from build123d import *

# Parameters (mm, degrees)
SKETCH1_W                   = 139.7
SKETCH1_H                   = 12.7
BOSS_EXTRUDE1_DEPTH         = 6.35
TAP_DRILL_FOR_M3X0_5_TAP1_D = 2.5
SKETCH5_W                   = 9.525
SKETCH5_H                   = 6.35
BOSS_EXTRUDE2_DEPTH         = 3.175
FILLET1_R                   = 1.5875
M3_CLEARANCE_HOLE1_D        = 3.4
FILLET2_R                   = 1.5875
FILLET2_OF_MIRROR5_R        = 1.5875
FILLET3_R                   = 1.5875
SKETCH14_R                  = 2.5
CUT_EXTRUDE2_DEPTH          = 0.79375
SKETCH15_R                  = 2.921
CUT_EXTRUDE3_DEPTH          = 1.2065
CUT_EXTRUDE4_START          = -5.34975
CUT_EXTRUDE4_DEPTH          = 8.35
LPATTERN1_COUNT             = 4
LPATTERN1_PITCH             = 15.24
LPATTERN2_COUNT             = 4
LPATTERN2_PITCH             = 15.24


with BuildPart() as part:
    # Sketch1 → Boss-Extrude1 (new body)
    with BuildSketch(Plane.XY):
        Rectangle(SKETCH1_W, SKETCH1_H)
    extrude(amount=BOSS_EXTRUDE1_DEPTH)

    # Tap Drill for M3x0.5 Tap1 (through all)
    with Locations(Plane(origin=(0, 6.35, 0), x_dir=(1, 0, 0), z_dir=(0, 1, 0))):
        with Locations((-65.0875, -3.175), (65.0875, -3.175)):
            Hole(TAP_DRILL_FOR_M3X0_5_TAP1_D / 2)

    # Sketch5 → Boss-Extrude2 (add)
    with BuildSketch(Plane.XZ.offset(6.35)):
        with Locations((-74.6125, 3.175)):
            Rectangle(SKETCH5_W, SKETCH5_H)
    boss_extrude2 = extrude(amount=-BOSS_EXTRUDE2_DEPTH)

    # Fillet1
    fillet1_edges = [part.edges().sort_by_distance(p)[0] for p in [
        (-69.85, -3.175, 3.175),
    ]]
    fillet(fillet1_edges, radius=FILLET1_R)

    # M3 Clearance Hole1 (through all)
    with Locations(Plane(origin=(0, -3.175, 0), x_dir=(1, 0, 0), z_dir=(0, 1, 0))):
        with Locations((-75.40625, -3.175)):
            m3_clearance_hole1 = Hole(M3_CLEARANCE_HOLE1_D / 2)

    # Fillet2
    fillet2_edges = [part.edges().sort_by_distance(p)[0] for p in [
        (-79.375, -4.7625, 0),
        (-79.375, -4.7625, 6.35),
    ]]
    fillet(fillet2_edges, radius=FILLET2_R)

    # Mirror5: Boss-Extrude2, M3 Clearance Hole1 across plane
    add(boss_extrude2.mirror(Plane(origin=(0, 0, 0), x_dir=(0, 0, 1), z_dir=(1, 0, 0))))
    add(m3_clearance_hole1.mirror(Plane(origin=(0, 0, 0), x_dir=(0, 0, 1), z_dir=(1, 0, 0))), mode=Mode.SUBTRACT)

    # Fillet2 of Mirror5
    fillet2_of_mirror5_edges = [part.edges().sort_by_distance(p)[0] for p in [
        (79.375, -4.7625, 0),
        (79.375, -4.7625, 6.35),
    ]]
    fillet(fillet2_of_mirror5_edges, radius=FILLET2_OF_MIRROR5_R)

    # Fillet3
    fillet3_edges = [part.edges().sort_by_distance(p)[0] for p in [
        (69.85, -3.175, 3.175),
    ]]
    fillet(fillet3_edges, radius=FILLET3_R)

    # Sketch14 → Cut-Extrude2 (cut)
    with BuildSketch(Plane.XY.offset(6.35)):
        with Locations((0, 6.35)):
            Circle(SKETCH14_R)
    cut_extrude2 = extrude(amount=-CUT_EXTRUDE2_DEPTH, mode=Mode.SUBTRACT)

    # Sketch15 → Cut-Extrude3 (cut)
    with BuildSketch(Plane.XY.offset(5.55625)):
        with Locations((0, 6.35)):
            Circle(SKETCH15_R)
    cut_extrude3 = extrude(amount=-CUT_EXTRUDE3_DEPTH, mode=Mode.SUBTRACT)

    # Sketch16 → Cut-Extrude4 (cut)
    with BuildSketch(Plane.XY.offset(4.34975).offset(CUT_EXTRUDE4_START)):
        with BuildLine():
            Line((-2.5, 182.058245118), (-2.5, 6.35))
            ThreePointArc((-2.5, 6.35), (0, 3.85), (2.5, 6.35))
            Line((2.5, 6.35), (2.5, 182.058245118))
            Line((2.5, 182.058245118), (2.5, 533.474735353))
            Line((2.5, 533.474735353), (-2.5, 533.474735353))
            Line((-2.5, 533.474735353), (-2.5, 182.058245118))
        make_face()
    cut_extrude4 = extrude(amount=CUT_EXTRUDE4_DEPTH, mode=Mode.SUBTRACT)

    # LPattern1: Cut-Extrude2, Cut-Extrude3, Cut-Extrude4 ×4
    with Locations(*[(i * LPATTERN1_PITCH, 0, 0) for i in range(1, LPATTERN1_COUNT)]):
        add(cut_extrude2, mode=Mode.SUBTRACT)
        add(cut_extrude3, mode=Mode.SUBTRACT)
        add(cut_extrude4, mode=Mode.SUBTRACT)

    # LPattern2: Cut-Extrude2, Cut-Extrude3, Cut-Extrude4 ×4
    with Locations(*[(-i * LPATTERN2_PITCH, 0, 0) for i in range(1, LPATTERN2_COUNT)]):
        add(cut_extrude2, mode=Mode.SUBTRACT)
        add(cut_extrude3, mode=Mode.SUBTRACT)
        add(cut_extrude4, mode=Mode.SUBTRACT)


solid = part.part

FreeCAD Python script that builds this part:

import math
import FreeCAD as App
import Part
import Sketcher
Q = App.Units.Quantity


def edges_at(feature, points):
    """Names of the edges that pass closest to the given points."""
    edges = feature.Shape.Edges
    near = lambda p: min(range(len(edges)), key=lambda i: edges[i].distToShape(Part.Vertex(*p))[0])
    return sorted({f"Edge{near(p) + 1}" for p in points})

doc = App.newDocument("Part")
body = doc.addObject("PartDesign::Body", "Body")

sketch1 = body.newObject("Sketcher::SketchObject", "Sketch")
sketch1.AttachmentSupport = (doc.getObject("XY_Plane"), [""])
sketch1.MapMode = "FlatFace"
sketch1.addGeometry(Part.LineSegment(App.Vector(-69.85, 6.35, 0), App.Vector(-69.85, -6.35, 0)), False)
sketch1.addGeometry(Part.LineSegment(App.Vector(-69.85, -6.35, 0), App.Vector(69.85, -6.35, 0)), False)
sketch1.addGeometry(Part.LineSegment(App.Vector(69.85, -6.35, 0), App.Vector(69.85, 6.35, 0)), False)
sketch1.addGeometry(Part.LineSegment(App.Vector(69.85, 6.35, 0), App.Vector(-69.85, 6.35, 0)), False)
sketch1.addConstraint(Sketcher.Constraint("Coincident", 0, 2, 1, 1))
sketch1.addConstraint(Sketcher.Constraint("Coincident", 1, 2, 2, 1))
sketch1.addConstraint(Sketcher.Constraint("Coincident", 2, 2, 3, 1))
sketch1.addConstraint(Sketcher.Constraint("Coincident", 3, 2, 0, 1))
sketch1.addConstraint(Sketcher.Constraint("Vertical", 0))
sketch1.addConstraint(Sketcher.Constraint("Horizontal", 1))
sketch1.addConstraint(Sketcher.Constraint("Vertical", 2))
sketch1.addConstraint(Sketcher.Constraint("Horizontal", 3))
sketch1.addConstraint(Sketcher.Constraint("Symmetric", 0, 2, 2, 2, -1, 1))
sketch1.addConstraint(Sketcher.Constraint("DistanceX", 1, 1, 1, 2, Q("5.5 in")))
sketch1.addConstraint(Sketcher.Constraint("DistanceY", 0, 2, 0, 1, Q("0.5 in")))
pad1 = body.newObject("PartDesign::Pad", "Pad")
pad1.Profile = sketch1
pad1.Length = Q("0.25 in")

sketch2 = body.newObject("Sketcher::SketchObject", "Sketch001")
sketch2.AttachmentSupport = (doc.getObject("XZ_Plane"), [""])
sketch2.MapMode = "FlatFace"
sketch2.AttachmentOffset = App.Placement(App.Vector(0, 0, -0.25 * 25.4), App.Rotation())
sketch2.addGeometry(Part.Circle(App.Vector(-65.0875, 3.175, 0), App.Vector(0, 0, 1), 1.25), False)
sketch2.addGeometry(Part.Circle(App.Vector(65.0875, 3.175, 0), App.Vector(0, 0, 1), 1.25), False)
sketch2.addConstraint(Sketcher.Constraint("Equal", 0, 1))
sketch2.addConstraint(Sketcher.Constraint("Symmetric", 0, 3, 1, 3, -2))
sketch2.addConstraint(Sketcher.Constraint("Diameter", 0, 2.5))
sketch2.addConstraint(Sketcher.Constraint("DistanceX", 0, 3, -1, 1, Q("2.5625 in")))
sketch2.addConstraint(Sketcher.Constraint("DistanceY", -1, 1, 0, 3, Q("0.125 in")))
doc.recompute()
hole = body.newObject("PartDesign::Hole", "Hole")
hole.Profile = sketch2
hole.ThreadType = "None"
hole.Diameter = 2.5
hole.DepthType = "ThroughAll"
hole.Reversed = True

sketch3 = body.newObject("Sketcher::SketchObject", "Sketch002")
sketch3.AttachmentSupport = (doc.getObject("XZ_Plane"), [""])
sketch3.MapMode = "FlatFace"
sketch3.AttachmentOffset = App.Placement(App.Vector(0, 0, 0.25 * 25.4), App.Rotation())
sketch3.addGeometry(Part.LineSegment(App.Vector(-79.375, 6.35, 0), App.Vector(-79.375, 0, 0)), False)
sketch3.addGeometry(Part.LineSegment(App.Vector(-79.375, 0, 0), App.Vector(-69.85, 0, 0)), False)
sketch3.addGeometry(Part.LineSegment(App.Vector(-69.85, 0, 0), App.Vector(-69.85, 6.35, 0)), False)
sketch3.addGeometry(Part.LineSegment(App.Vector(-69.85, 6.35, 0), App.Vector(-79.375, 6.35, 0)), False)
sketch3.addConstraint(Sketcher.Constraint("Coincident", 0, 2, 1, 1))
sketch3.addConstraint(Sketcher.Constraint("Coincident", 1, 2, 2, 1))
sketch3.addConstraint(Sketcher.Constraint("Coincident", 2, 2, 3, 1))
sketch3.addConstraint(Sketcher.Constraint("Coincident", 3, 2, 0, 1))
sketch3.addConstraint(Sketcher.Constraint("Vertical", 0))
sketch3.addConstraint(Sketcher.Constraint("Horizontal", 1))
sketch3.addConstraint(Sketcher.Constraint("Vertical", 2))
sketch3.addConstraint(Sketcher.Constraint("Horizontal", 3))
sketch3.addConstraint(Sketcher.Constraint("PointOnObject", 0, 2, -1))
sketch3.addConstraint(Sketcher.Constraint("DistanceY", 0, 2, 0, 1, Q("0.25 in")))
sketch3.addConstraint(Sketcher.Constraint("DistanceX", 1, 1, 1, 2, Q("0.375 in")))
sketch3.addConstraint(Sketcher.Constraint("DistanceX", 1, 2, -1, 1, Q("2.75 in")))
pad2 = body.newObject("PartDesign::Pad", "Pad001")
pad2.Profile = sketch3
pad2.Length = Q("0.125 in")
pad2.Reversed = True
doc.recompute()

fillet = body.newObject("PartDesign::Fillet", "Fillet")
fillet.Base = (pad2, edges_at(pad2, [(-69.85, -3.175, 3.175)]))
fillet.Radius = Q("0.0625 in")

sketch4 = body.newObject("Sketcher::SketchObject", "Sketch003")
sketch4.AttachmentSupport = (doc.getObject("XZ_Plane"), [""])
sketch4.MapMode = "FlatFace"
sketch4.AttachmentOffset = App.Placement(App.Vector(0, 0, 0.125 * 25.4), App.Rotation())
sketch4.addGeometry(Part.Circle(App.Vector(-75.40625, 3.175, 0), App.Vector(0, 0, 1), 1.7), False)
sketch4.addConstraint(Sketcher.Constraint("Diameter", 0, 3.4))
sketch4.addConstraint(Sketcher.Constraint("DistanceX", 0, 3, -1, 1, Q("2.96875 in")))
sketch4.addConstraint(Sketcher.Constraint("DistanceY", -1, 1, 0, 3, Q("0.125 in")))
doc.recompute()
hole2 = body.newObject("PartDesign::Hole", "Hole001")
hole2.Profile = sketch4
hole2.ThreadType = "None"
hole2.Diameter = 3.4
hole2.DepthType = "ThroughAll"
hole2.Reversed = True
doc.recompute()

fillet2 = body.newObject("PartDesign::Fillet", "Fillet001")
fillet2.Base = (hole2, edges_at(hole2, [(-79.375, -4.763, 0), (-79.375, -4.763, 6.35)]))
fillet2.Radius = Q("0.0625 in")
doc.recompute()

mirrored = body.newObject("PartDesign::Mirrored", "Mirrored")
mirrored.Originals = [pad2, hole2]
mirrored.MirrorPlane = (doc.getObject("YZ_Plane"), [""])
body.Tip = mirrored
doc.recompute()

fillet3 = body.newObject("PartDesign::Fillet", "Fillet002")
fillet3.Base = (mirrored, edges_at(mirrored, [(79.375, -4.763, 0), (79.375, -4.763, 6.35)]))
fillet3.Radius = Q("0.0625 in")
doc.recompute()

fillet4 = body.newObject("PartDesign::Fillet", "Fillet003")
fillet4.Base = (fillet3, edges_at(fillet3, [(69.85, -3.175, 3.175)]))
fillet4.Radius = Q("0.0625 in")

sketch5 = body.newObject("Sketcher::SketchObject", "Sketch004")
sketch5.AttachmentSupport = (doc.getObject("XY_Plane"), [""])
sketch5.MapMode = "FlatFace"
sketch5.AttachmentOffset = App.Placement(App.Vector(0, 0, 0.25 * 25.4), App.Rotation())
sketch5.addGeometry(Part.Circle(App.Vector(0, 6.35, 0), App.Vector(0, 0, 1), 2.5), False)
sketch5.addConstraint(Sketcher.Constraint("PointOnObject", 0, 3, -2))
sketch5.addConstraint(Sketcher.Constraint("Diameter", 0, 5.0))
sketch5.addConstraint(Sketcher.Constraint("DistanceY", -1, 1, 0, 3, Q("0.25 in")))
pocket1 = body.newObject("PartDesign::Pocket", "Pocket")
pocket1.Profile = sketch5
pocket1.Length = Q("0.03125 in")

sketch6 = body.newObject("Sketcher::SketchObject", "Sketch005")
sketch6.AttachmentSupport = (doc.getObject("XY_Plane"), [""])
sketch6.MapMode = "FlatFace"
sketch6.AttachmentOffset = App.Placement(App.Vector(0, 0, 0.21875 * 25.4), App.Rotation())
sketch6.addGeometry(Part.Circle(App.Vector(0, 6.35, 0), App.Vector(0, 0, 1), 2.921), False)
sketch6.addConstraint(Sketcher.Constraint("PointOnObject", 0, 3, -2))
sketch6.addConstraint(Sketcher.Constraint("Diameter", 0, Q("0.23 in")))
sketch6.addConstraint(Sketcher.Constraint("DistanceY", -1, 1, 0, 3, Q("0.25 in")))
pocket2 = body.newObject("PartDesign::Pocket", "Pocket001")
pocket2.Profile = sketch6
pocket2.Length = Q("0.0475 in")

sketch7 = body.newObject("Sketcher::SketchObject", "Sketch006")
sketch7.AttachmentSupport = (doc.getObject("XY_Plane"), [""])
sketch7.MapMode = "FlatFace"
sketch7.AttachmentOffset = App.Placement(App.Vector(0, 0, -1), App.Rotation())
sketch7.addGeometry(Part.ArcOfCircle(Part.Circle(App.Vector(0, 6.35, 0), App.Vector(0, 0, 1), 2.5), math.radians(180), math.radians(360)), False)
sketch7.addGeometry(Part.LineSegment(App.Vector(2.5, 6.35, 0), App.Vector(2.5, 533.474735, 0)), False)
sketch7.addGeometry(Part.LineSegment(App.Vector(2.5, 533.474735, 0), App.Vector(-2.5, 533.474735, 0)), False)
sketch7.addGeometry(Part.LineSegment(App.Vector(-2.5, 533.474735, 0), App.Vector(-2.5, 6.35, 0)), False)
sketch7.addConstraint(Sketcher.Constraint("Tangent", 0, 2, 1, 1))
sketch7.addConstraint(Sketcher.Constraint("Coincident", 1, 2, 2, 1))
sketch7.addConstraint(Sketcher.Constraint("Coincident", 2, 2, 3, 1))
sketch7.addConstraint(Sketcher.Constraint("Tangent", 3, 2, 0, 1))
sketch7.addConstraint(Sketcher.Constraint("Vertical", 1))
sketch7.addConstraint(Sketcher.Constraint("Horizontal", 2))
sketch7.addConstraint(Sketcher.Constraint("Vertical", 3))
sketch7.addConstraint(Sketcher.Constraint("PointOnObject", 0, 3, -2))
sketch7.addConstraint(Sketcher.Constraint("DistanceY", -1, 1, 0, 3, Q("0.25 in")))
sketch7.addConstraint(Sketcher.Constraint("Radius", 0, 2.5))
sketch7.addConstraint(Sketcher.Constraint("DistanceY", 1, 1, 1, 2, 527.124735))
pocket3 = body.newObject("PartDesign::Pocket", "Pocket002")
pocket3.Profile = sketch7
pocket3.Length = 8.35
pocket3.Reversed = True
doc.recompute()

linearpattern = body.newObject("PartDesign::LinearPattern", "LinearPattern")
linearpattern.Originals = [pocket1, pocket2, pocket3]
linearpattern.Direction = (doc.getObject("X_Axis"), [""])
linearpattern.Mode = "offset"
linearpattern.Offset = Q("0.6 in")
linearpattern.Occurrences = 4
body.Tip = linearpattern
doc.recompute()

linearpattern2 = body.newObject("PartDesign::LinearPattern", "LinearPattern001")
linearpattern2.Originals = [pocket1, pocket2, pocket3]
linearpattern2.Direction = (doc.getObject("X_Axis"), [""])
linearpattern2.Mode = "offset"
linearpattern2.Offset = Q("0.6 in")
linearpattern2.Occurrences = 4
linearpattern2.Reversed = True
body.Tip = linearpattern2

doc.recompute()
